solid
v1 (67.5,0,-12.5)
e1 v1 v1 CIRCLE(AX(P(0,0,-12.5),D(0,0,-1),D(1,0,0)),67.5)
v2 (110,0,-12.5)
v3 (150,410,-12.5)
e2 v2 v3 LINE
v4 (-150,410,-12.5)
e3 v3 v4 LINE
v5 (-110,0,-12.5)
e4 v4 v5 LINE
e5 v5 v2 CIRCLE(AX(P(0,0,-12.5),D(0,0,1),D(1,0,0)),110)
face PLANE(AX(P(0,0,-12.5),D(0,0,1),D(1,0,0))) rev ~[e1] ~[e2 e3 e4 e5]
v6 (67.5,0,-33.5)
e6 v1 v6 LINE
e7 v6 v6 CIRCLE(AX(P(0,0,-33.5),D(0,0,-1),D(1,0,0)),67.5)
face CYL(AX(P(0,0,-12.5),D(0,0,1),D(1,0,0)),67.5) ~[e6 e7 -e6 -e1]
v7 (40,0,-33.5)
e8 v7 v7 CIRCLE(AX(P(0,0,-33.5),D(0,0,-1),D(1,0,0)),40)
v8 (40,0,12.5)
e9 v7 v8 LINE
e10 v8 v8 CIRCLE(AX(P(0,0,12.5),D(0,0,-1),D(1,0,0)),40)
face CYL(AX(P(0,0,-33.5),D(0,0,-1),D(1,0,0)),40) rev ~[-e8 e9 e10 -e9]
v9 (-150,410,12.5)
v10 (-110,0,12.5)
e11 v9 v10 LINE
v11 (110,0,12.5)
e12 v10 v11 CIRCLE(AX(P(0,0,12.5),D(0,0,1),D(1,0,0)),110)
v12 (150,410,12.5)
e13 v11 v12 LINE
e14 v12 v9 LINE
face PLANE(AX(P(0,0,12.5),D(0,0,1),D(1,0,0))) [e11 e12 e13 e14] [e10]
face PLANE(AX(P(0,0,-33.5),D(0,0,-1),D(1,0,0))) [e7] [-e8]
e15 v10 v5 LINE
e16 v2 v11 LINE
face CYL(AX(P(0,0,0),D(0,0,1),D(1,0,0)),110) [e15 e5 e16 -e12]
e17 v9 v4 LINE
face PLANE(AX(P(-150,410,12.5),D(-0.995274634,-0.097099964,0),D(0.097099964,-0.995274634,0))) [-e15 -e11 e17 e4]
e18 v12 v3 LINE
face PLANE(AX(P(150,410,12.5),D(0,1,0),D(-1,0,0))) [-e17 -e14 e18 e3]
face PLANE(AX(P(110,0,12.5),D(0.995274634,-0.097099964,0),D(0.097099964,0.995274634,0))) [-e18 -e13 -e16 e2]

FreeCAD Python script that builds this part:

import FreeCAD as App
import Part
import Sketcher

V = App.Vector

doc = App.newDocument("Part")
body = doc.addObject("PartDesign::Body", "Body")

# Sketch on XY plane
sketch1 = body.newObject("Sketcher::SketchObject", "Sketch")
sketch1.AttachmentSupport = (doc.getObject("XY_Plane"), [""])
sketch1.MapMode = "FlatFace"
sketch1.addGeometry(Part.Circle(V(0, 0, 0), V(0, 0, 1), 110), False)
sketch1.addConstraint(Sketcher.Constraint("Coincident", 0, 3, -1, 1))
sketch1.addConstraint(Sketcher.Constraint("Diameter", 0, 220.0))
pad1 = body.newObject("PartDesign::Pad", "Pad")
pad1.Profile = sketch1
pad1.Length = 25
pad1.Midplane = True

# Sketch on XY plane
sketch2 = body.newObject("Sketcher::SketchObject", "Sketch001")
sketch2.AttachmentSupport = (doc.getObject("XY_Plane"), [""])
sketch2.MapMode = "FlatFace"
sketch2.AttachmentOffset = App.Placement(V(0, 0, 12.5), App.Rotation())
sketch2.addGeometry(Part.LineSegment(V(-110, 0, 0), V(110, 0, 0)), False)
sketch2.addGeometry(Part.LineSegment(V(110, 0, 0), V(150, 410, 0)), False)
sketch2.addGeometry(Part.LineSegment(V(150, 410, 0), V(-150, 410, 0)), False)
sketch2.addGeometry(Part.LineSegment(V(-150, 410, 0), V(-110, 0, 0)), False)
sketch2.addConstraint(Sketcher.Constraint("Coincident", 0, 2, 1, 1))
sketch2.addConstraint(Sketcher.Constraint("Coincident", 1, 2, 2, 1))
sketch2.addConstraint(Sketcher.Constraint("Coincident", 2, 2, 3, 1))
sketch2.addConstraint(Sketcher.Constraint("Coincident", 3, 2, 0, 1))
sketch2.addConstraint(Sketcher.Constraint("Horizontal", 0))
sketch2.addConstraint(Sketcher.Constraint("Horizontal", 2))
sketch2.addConstraint(Sketcher.Constraint("Symmetric", 0, 2, 3, 2, -1, 1))
sketch2.addConstraint(Sketcher.Constraint("Equal", 1, 3))
sketch2.addConstraint(Sketcher.Constraint("DistanceX", 0, 1, 0, 2, 220.0))
sketch2.addConstraint(Sketcher.Constraint("DistanceX", 2, 2, 2, 1, 300.0))
sketch2.addConstraint(Sketcher.Constraint("DistanceY", -1, 1, 1, 2, 410.0))
pad2 = body.newObject("PartDesign::Pad", "Pad001")
pad2.Profile = sketch2
pad2.Length = 25
pad2.Reversed = True

# Sketch on XY plane
sketch3 = body.newObject("Sketcher::SketchObject", "Sketch002")
sketch3.AttachmentSupport = (doc.getObject("XY_Plane"), [""])
sketch3.MapMode = "FlatFace"
sketch3.AttachmentOffset = App.Placement(V(0, 0, -12.5), App.Rotation())
sketch3.addGeometry(Part.Circle(V(0, 0, 0), V(0, 0, 1), 67.5), False)
sketch3.addConstraint(Sketcher.Constraint("Coincident", 0, 3, -1, 1))
sketch3.addConstraint(Sketcher.Constraint("Diameter", 0, 135.0))
pad3 = body.newObject("PartDesign::Pad", "Pad002")
pad3.Profile = sketch3
pad3.Length = 21
pad3.Reversed = True

# Sketch on XY plane
sketch4 = body.newObject("Sketcher::SketchObject", "Sketch003")
sketch4.AttachmentSupport = (doc.getObject("XY_Plane"), [""])
sketch4.MapMode = "FlatFace"
sketch4.AttachmentOffset = App.Placement(V(0, 0, -33.5), App.Rotation())
sketch4.addGeometry(Part.Circle(V(0, 0, 0), V(0, 0, 1), 40), False)
sketch4.addConstraint(Sketcher.Constraint("Coincident", 0, 3, -1, 1))
sketch4.addConstraint(Sketcher.Constraint("Diameter", 0, 80.0))
pocket1 = body.newObject("PartDesign::Pocket", "Pocket")
pocket1.Profile = sketch4
pocket1.Length = 60
pocket1.Reversed = True

doc.recompute()
